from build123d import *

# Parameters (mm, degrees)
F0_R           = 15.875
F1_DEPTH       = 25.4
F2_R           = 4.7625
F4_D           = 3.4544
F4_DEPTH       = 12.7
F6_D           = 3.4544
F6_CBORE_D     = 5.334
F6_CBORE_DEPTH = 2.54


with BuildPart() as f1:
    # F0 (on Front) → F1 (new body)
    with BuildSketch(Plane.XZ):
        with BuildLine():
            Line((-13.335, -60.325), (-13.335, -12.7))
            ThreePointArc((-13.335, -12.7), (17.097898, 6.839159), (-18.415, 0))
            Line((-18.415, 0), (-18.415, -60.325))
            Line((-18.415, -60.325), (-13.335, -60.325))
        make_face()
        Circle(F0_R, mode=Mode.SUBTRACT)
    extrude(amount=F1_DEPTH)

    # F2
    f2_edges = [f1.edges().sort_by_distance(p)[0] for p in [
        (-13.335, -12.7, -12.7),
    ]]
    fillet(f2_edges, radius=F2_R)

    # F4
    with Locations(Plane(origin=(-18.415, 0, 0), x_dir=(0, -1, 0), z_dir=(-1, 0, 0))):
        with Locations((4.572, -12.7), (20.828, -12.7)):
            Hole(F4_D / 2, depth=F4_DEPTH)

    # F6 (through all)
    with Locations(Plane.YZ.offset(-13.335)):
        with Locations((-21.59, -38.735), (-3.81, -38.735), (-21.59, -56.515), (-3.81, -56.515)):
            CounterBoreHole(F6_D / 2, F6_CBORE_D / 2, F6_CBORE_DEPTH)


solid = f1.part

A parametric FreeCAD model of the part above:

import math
import FreeCAD as App
import Part
import Sketcher
from FreeCAD import Vector
Q = App.Units.Quantity


def edges_at(feature, points):
    """Names of the edges that pass closest to the given points."""
    edges = feature.Shape.Edges
    near = lambda p: min(range(len(edges)), key=lambda i: edges[i].distToShape(Part.Vertex(*p))[0])
    return sorted({f"Edge{near(p) + 1}" for p in points})

doc = App.newDocument("Part")
body = doc.addObject("PartDesign::Body", "Body")

sketch1 = doc.addObject("Sketcher::SketchObject", "Sketch")
body.addObject(sketch1)
sketch1.AttachmentSupport = (doc.XZ_Plane, [""])
sketch1.MapMode = "FlatFace"
sketch1.addGeometry(Part.LineSegment(Vector(-13, -60, 0), Vector(-13, -13, 0)), False)
sketch1.addGeometry(Part.ArcOfCircle(Part.Circle(Vector(0, 0, 0), Vector(0, 0, 1), 18), math.radians(-136), math.radians(180)), False)
sketch1.addGeometry(Part.LineSegment(Vector(-18, 0, 0), Vector(-18, -60, 0)), False)
sketch1.addGeometry(Part.LineSegment(Vector(-18, -60, 0), Vector(-13, -60, 0)), False)
sketch1.addGeometry(Part.Circle(Vector(0, 0, 0), Vector(0, 0, 1), 16), False)
sketch1.addConstraint(Sketcher.Constraint("Coincident", 0, 2, 1, 1))
sketch1.addConstraint(Sketcher.Constraint("Tangent", 1, 2, 2, 1))
sketch1.addConstraint(Sketcher.Constraint("Coincident", 2, 2, 3, 1))
sketch1.addConstraint(Sketcher.Constraint("Coincident", 3, 2, 0, 1))
sketch1.addConstraint(Sketcher.Constraint("Vertical", 0))
sketch1.addConstraint(Sketcher.Constraint("Vertical", 2))
sketch1.addConstraint(Sketcher.Constraint("Horizontal", 3))
sketch1.addConstraint(Sketcher.Constraint("Coincident", 1, 3, -1, 1))
sketch1.addConstraint(Sketcher.Constraint("Coincident", 4, 3, -1, 1))
sketch1.addConstraint(Sketcher.Constraint("Diameter", 4, Q("1.25 in")))
sketch1.addConstraint(Sketcher.Constraint("DistanceX", 3, 1, 3, 2, Q("0.2 in")))
sketch1.addConstraint(Sketcher.Constraint("Radius", 1, Q("0.725 in")))
sketch1.addConstraint(Sketcher.Constraint("DistanceY", 0, 1, 0, 2, Q("1.875 in")))
pad1 = doc.addObject("PartDesign::Pad", "Pad")
body.addObject(pad1)
pad1.Profile = sketch1
pad1.Length = Q("1 in")
doc.recompute()

fillet = doc.addObject("PartDesign::Fillet", "Fillet")
body.addObject(fillet)
fillet.Base = (pad1, edges_at(pad1, [(-13.335, -12.7, -12.7)]))
fillet.Radius = Q("0.1875 in")

sketch2 = doc.addObject("Sketcher::SketchObject", "Sketch001")
body.addObject(sketch2)
sketch2.AttachmentSupport = (doc.YZ_Plane, [""])
sketch2.MapMode = "FlatFace"
sketch2.AttachmentOffset = App.Placement(Vector(0, 0, -0.725 * 25.4), App.Rotation())
sketch2.addGeometry(Part.Circle(Vector(-4.6, -12.7, 0), Vector(0, 0, 1), 1.7), False)
sketch2.addGeometry(Part.Circle(Vector(-20.8, -12.7, 0), Vector(0, 0, 1), 1.7), False)
sketch2.addConstraint(Sketcher.Constraint("Equal", 0, 1))
sketch2.addConstraint(Sketcher.Constraint("Horizontal", 0, 3, 1, 3))
sketch2.addConstraint(Sketcher.Constraint("Diameter", 0, Q("0.136 in")))
sketch2.addConstraint(Sketcher.Constraint("DistanceY", 0, 3, -1, 1, Q("0.5 in")))
sketch2.addConstraint(Sketcher.Constraint("DistanceX", 0, 3, -1, 1, Q("0.18 in")))
sketch2.addConstraint(Sketcher.Constraint("DistanceX", 1, 3, -1, 1, Q("0.82 in")))
doc.recompute()
hole = doc.addObject("PartDesign::Hole", "Hole")
body.addObject(hole)
hole.Profile = sketch2
hole.ThreadType = "None"
hole.Diameter = Q("0.136 in")
hole.DepthType = "Dimension"
hole.Depth = Q("0.5 in")
hole.DrillPoint = "Flat"
hole.Reversed = True

sketch3 = doc.addObject("Sketcher::SketchObject", "Sketch002")
body.addObject(sketch3)
sketch3.AttachmentSupport = (doc.YZ_Plane, [""])
sketch3.MapMode = "FlatFace"
sketch3.AttachmentOffset = App.Placement(Vector(0, 0, -0.525 * 25.4), App.Rotation())
sketch3.addGeometry(Part.Circle(Vector(-21.6, -38.7, 0), Vector(0, 0, 1), 1.7), False)
sketch3.addGeometry(Part.Circle(Vector(-3.8, -38.7, 0), Vector(0, 0, 1), 1.7), False)
sketch3.addGeometry(Part.Circle(Vector(-21.6, -56.5, 0), Vector(0, 0, 1), 1.7), False)
sketch3.addGeometry(Part.Circle(Vector(-3.8, -56.5, 0), Vector(0, 0, 1), 1.7), False)
sketch3.addConstraint(Sketcher.Constraint("Equal", 0, 1))
sketch3.addConstraint(Sketcher.Constraint("Equal", 1, 2))
sketch3.addConstraint(Sketcher.Constraint("Equal", 2, 3))
sketch3.addConstraint(Sketcher.Constraint("Horizontal", 0, 3, 1, 3))
sketch3.addConstraint(Sketcher.Constraint("Horizontal", 2, 3, 3, 3))
sketch3.addConstraint(Sketcher.Constraint("Vertical", 0, 3, 2, 3))
sketch3.addConstraint(Sketcher.Constraint("Vertical", 1, 3, 3, 3))
sketch3.addConstraint(Sketcher.Constraint("Diameter", 0, Q("0.136 in")))
sketch3.addConstraint(Sketcher.Constraint("DistanceX", 0, 3, 1, 3, Q("0.7 in")))
sketch3.addConstraint(Sketcher.Constraint("DistanceY", 2, 3, 0, 3, Q("0.7 in")))
sketch3.addConstraint(Sketcher.Constraint("DistanceX", 0, 3, -1, 1, Q("0.85 in")))
sketch3.addConstraint(Sketcher.Constraint("DistanceY", 0, 3, -1, 1, Q("1.525 in")))
doc.recompute()
hole2 = doc.addObject("PartDesign::Hole", "Hole001")
body.addObject(hole2)
hole2.Profile = sketch3
hole2.ThreadType = "None"
hole2.Diameter = Q("0.136 in")
hole2.DepthType = "ThroughAll"
hole2.HoleCutType = "Counterbore"
hole2.HoleCutDiameter = Q("0.21 in")
hole2.HoleCutDepth = Q("0.1 in")

doc.recompute()
